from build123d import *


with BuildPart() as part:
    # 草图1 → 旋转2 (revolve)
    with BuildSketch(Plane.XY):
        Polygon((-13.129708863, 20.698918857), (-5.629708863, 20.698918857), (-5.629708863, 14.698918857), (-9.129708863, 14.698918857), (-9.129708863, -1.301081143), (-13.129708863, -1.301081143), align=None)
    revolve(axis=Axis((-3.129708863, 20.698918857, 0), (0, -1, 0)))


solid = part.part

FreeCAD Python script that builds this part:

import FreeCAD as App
import Part
import Sketcher
from FreeCAD import Vector


def add_polygon(sketch, points):
    """Adds a closed chain of lines whose ends are joined by coincident constraints."""
    first, n = sketch.GeometryCount, len(points)
    for a, b in zip(points, points[1:] + points[:1]):
        sketch.addGeometry(Part.LineSegment(App.Vector(*a, 0), App.Vector(*b, 0)), False)
    for i in range(n):
        sketch.addConstraint(Sketcher.Constraint("Coincident", first + i, 2, first + (i + 1) % n, 1))

doc = App.newDocument("Part")
body = doc.addObject("PartDesign::Body", "Body")

# Sketch on XY plane
sketch1 = body.newObject("Sketcher::SketchObject", "Sketch")
sketch1.AttachmentSupport = (doc.getObject("XY_Plane"), [""])
sketch1.MapMode = "FlatFace"
add_polygon(sketch1, [(-5.629709, 20.698919), (-13.129709, 20.698919), (-13.129709, -1.301081), (-9.129709, -1.301081), (-9.129709, 14.698919), (-5.629709, 14.698919)])  # lines 0-5
sketch1.addGeometry(Part.LineSegment(Vector(-3.129709, 20.698919, 0), Vector(-3.129709, -1.301081, 0)), True)  # axis
sketch1.addConstraint([
    Sketcher.Constraint("Horizontal", 0),
    Sketcher.Constraint("Vertical", 1),
    Sketcher.Constraint("Horizontal", 2),
    Sketcher.Constraint("Vertical", 3),
    Sketcher.Constraint("Horizontal", 4),
    Sketcher.Constraint("Vertical", 5),
    Sketcher.Constraint("Vertical", 6),
    Sketcher.Constraint("Horizontal", 5, 2, 6, 1),
    Sketcher.Constraint("Horizontal", 2, 2, 6, 2),
    Sketcher.Constraint("DistanceX", 2, 1, 2, 2, 4.0),
    Sketcher.Constraint("DistanceY", 1, 2, 1, 1, 22.0),
    Sketcher.Constraint("DistanceY", 3, 1, 3, 2, 16.0),
    Sketcher.Constraint("DistanceX", 0, 2, 0, 1, 7.5),
    Sketcher.Constraint("DistanceX", 3, 2, 6, 1, 6.0),
    Sketcher.Constraint("DistanceX", 0, 2, -1, 1, 13.129709),
    Sketcher.Constraint("DistanceY", -1, 1, 0, 2, 20.698919),
])
revolution = body.newObject("PartDesign::Revolution", "Revolution")
revolution.Profile = sketch1
revolution.ReferenceAxis = (sketch1, ["Axis0"])
revolution.Angle = 360

doc.recompute()
